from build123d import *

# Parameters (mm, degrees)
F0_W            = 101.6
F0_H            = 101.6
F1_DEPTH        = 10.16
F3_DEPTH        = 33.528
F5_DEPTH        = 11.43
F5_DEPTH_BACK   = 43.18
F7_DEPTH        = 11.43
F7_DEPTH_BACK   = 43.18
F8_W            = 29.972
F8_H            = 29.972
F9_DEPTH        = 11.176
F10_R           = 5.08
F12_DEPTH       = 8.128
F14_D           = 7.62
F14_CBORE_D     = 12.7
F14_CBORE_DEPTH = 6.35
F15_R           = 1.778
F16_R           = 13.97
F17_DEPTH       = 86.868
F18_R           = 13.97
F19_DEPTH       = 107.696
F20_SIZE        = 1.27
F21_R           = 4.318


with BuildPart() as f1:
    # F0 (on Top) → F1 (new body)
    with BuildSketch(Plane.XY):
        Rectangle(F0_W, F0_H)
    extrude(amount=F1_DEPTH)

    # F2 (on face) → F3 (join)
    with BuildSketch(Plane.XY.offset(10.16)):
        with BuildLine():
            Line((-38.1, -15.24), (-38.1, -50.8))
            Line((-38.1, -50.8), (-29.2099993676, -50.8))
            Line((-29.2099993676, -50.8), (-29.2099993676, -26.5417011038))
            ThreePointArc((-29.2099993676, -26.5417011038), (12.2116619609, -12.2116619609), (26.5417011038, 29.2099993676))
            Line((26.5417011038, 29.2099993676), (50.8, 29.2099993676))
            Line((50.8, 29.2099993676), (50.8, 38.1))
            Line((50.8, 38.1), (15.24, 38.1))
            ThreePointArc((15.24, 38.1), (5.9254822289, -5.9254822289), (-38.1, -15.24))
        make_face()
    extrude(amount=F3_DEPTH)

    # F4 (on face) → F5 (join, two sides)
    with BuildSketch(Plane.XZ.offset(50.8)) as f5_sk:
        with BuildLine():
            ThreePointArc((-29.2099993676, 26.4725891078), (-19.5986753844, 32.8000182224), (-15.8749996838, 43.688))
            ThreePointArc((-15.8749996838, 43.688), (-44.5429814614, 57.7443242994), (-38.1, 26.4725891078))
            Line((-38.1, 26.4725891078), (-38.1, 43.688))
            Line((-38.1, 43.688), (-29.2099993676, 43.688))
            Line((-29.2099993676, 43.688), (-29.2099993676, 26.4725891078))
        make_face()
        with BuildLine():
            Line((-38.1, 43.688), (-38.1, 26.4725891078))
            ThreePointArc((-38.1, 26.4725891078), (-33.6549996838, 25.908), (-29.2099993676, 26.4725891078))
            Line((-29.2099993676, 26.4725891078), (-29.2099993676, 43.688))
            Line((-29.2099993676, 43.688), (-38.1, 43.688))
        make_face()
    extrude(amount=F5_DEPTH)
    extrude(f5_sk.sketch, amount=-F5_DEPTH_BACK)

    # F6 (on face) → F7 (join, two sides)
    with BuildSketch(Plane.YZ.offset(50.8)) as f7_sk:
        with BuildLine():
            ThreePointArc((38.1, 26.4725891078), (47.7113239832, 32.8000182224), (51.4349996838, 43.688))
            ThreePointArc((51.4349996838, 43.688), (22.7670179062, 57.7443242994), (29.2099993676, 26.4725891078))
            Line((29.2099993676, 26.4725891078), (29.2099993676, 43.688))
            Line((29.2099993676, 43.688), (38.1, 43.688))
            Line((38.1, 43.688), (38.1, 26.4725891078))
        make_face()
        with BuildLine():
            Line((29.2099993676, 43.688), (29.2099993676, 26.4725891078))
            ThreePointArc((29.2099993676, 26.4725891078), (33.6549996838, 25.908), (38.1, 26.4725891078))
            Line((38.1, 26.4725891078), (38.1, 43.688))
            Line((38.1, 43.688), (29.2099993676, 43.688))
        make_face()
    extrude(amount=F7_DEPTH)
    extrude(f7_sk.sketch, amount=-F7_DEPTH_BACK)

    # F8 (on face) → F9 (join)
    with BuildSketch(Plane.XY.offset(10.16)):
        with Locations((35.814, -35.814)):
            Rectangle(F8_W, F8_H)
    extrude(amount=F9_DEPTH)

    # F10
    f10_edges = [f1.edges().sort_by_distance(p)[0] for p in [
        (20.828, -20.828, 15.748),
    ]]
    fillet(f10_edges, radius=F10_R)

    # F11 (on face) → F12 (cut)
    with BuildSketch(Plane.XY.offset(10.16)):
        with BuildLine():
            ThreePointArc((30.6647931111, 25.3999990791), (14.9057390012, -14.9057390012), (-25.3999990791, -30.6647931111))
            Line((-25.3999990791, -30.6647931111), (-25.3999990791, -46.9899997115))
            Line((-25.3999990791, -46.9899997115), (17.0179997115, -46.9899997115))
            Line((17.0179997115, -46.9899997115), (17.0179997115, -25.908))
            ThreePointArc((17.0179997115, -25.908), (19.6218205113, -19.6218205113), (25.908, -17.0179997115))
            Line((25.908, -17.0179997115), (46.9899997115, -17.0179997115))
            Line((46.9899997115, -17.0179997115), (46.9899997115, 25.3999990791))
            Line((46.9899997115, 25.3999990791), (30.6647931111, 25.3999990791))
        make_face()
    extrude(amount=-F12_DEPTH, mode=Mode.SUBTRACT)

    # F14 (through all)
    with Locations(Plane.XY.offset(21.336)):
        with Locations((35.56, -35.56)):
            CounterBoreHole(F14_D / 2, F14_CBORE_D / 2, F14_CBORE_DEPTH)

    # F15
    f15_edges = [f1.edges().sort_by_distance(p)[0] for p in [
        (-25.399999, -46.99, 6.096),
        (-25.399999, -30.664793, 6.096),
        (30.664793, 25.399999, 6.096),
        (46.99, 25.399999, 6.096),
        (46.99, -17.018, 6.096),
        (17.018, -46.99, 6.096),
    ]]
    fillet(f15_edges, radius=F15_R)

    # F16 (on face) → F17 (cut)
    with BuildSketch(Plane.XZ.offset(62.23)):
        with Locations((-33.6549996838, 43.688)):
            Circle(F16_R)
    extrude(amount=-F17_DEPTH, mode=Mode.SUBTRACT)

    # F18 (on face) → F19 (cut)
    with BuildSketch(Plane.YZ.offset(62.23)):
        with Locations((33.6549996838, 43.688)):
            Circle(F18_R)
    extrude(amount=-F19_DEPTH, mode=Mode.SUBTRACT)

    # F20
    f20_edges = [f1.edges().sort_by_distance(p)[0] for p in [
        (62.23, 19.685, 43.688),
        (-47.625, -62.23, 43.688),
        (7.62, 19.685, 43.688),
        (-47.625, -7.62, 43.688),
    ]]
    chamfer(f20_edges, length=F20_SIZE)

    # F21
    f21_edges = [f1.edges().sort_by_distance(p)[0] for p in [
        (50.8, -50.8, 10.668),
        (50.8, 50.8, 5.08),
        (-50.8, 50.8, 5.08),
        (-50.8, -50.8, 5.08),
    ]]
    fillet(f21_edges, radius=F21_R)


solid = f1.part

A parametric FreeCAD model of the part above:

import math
import FreeCAD as App
import Part
import Sketcher

V = App.Vector
Q = App.Units.Quantity


def edges_at(feature, points):
    """Names of the edges that pass closest to the given points."""
    edges = feature.Shape.Edges
    near = lambda p: min(range(len(edges)), key=lambda i: edges[i].distToShape(Part.Vertex(*p))[0])
    return sorted({f"Edge{near(p) + 1}" for p in points})


def add_polygon(sketch, points):
    """Adds a closed chain of lines whose ends are joined by coincident constraints."""
    first, n = sketch.GeometryCount, len(points)
    for a, b in zip(points, points[1:] + points[:1]):
        sketch.addGeometry(Part.LineSegment(App.Vector(*a, 0), App.Vector(*b, 0)), False)
    for i in range(n):
        sketch.addConstraint(Sketcher.Constraint("Coincident", first + i, 2, first + (i + 1) % n, 1))

doc = App.newDocument("Part")
body = doc.addObject("PartDesign::Body", "Body")

sketch1 = doc.addObject("Sketcher::SketchObject", "Sketch")
body.addObject(sketch1)
sketch1.AttachmentSupport = (doc.XY_Plane, [""])
sketch1.MapMode = "FlatFace"
add_polygon(sketch1, [(-51, 51), (-51, -51), (51, -51), (51, 51)])
sketch1.addConstraint([
    Sketcher.Constraint("Vertical", 0),
    Sketcher.Constraint("Horizontal", 1),
    Sketcher.Constraint("Vertical", 2),
    Sketcher.Constraint("Horizontal", 3),
    Sketcher.Constraint("Symmetric", 0, 2, 2, 2, -1, 1),
    Sketcher.Constraint("Equal", 3, 0),
    Sketcher.Constraint("DistanceX", 1, 1, 1, 2, Q("4 in")),
])
pad1 = doc.addObject("PartDesign::Pad", "Pad")
body.addObject(pad1)
pad1.Profile = sketch1
pad1.Length = Q("0.4 in")

sketch2 = doc.addObject("Sketcher::SketchObject", "Sketch001")
body.addObject(sketch2)
sketch2.AttachmentSupport = (doc.XY_Plane, [""])
sketch2.MapMode = "FlatFace"
sketch2.AttachmentOffset = App.Placement(V(0, 0, 0.4 * 25.4), App.Rotation())
sketch2.addGeometry([
    Part.LineSegment(V(-38, -15, 0), V(-38, -51, 0)),
    Part.LineSegment(V(-38, -51, 0), V(-29, -51, 0)),
    Part.LineSegment(V(-29, -51, 0), V(-29, -27, 0)),
    Part.ArcOfCircle(Part.Circle(V(-23, 23, 0), V(0, 0, 1), 50), math.radians(-97), math.radians(7)),
    Part.LineSegment(V(27, 29, 0), V(51, 29, 0)),
    Part.LineSegment(V(51, 29, 0), V(51, 38, 0)),
    Part.LineSegment(V(51, 38, 0), V(15, 38, 0)),
    Part.ArcOfCircle(Part.Circle(V(-23, 23, 0), V(0, 0, 1), 41), math.radians(-111), math.radians(21)),
], False)
sketch2.addConstraint([
    Sketcher.Constraint("Coincident", 0, 2, 1, 1),
    Sketcher.Constraint("Coincident", 1, 2, 2, 1),
    Sketcher.Constraint("Coincident", 2, 2, 3, 1),
    Sketcher.Constraint("Coincident", 3, 2, 4, 1),
    Sketcher.Constraint("Coincident", 4, 2, 5, 1),
    Sketcher.Constraint("Coincident", 5, 2, 6, 1),
    Sketcher.Constraint("Coincident", 6, 2, 7, 2),
    Sketcher.Constraint("Coincident", 7, 1, 0, 1),
    Sketcher.Constraint("Vertical", 0),
    Sketcher.Constraint("Horizontal", 1),
    Sketcher.Constraint("Vertical", 2),
    Sketcher.Constraint("Horizontal", 4),
    Sketcher.Constraint("Vertical", 5),
    Sketcher.Constraint("Horizontal", 6),
    Sketcher.Constraint("Coincident", 7, 3, 3, 3),
    Sketcher.Constraint("Equal", 6, 0),
    Sketcher.Constraint("Equal", 4, 2),
    Sketcher.Constraint("Equal", 1, 5),
    Sketcher.Constraint("DistanceX", 6, 2, 6, 1, Q("1.4 in")),
    Sketcher.Constraint("DistanceY", 0, 2, -1, 1, Q("2 in")),
    Sketcher.Constraint("DistanceX", -1, 1, 4, 2, Q("2 in")),
    Sketcher.Constraint("DistanceX", 1, 1, 1, 2, Q("0.35 in")),
    Sketcher.Constraint("DistanceX", 0, 2, -1, 1, Q("1.5 in")),
    Sketcher.Constraint("Radius", 3, 50.141911),
    Sketcher.Constraint("Radius", 7, 41.25191),
])
pad2 = doc.addObject("PartDesign::Pad", "Pad001")
body.addObject(pad2)
pad2.Profile = sketch2
pad2.Length = Q("1.32 in")

sketch3 = doc.addObject("Sketcher::SketchObject", "Sketch002")
body.addObject(sketch3)
sketch3.AttachmentSupport = (doc.XZ_Plane, [""])
sketch3.MapMode = "FlatFace"
sketch3.AttachmentOffset = App.Placement(V(0, 0, 2 * 25.4), App.Rotation())
sketch3.addGeometry([
    Part.ArcOfCircle(Part.Circle(V(-34, 44, 0), V(0, 0, 1), 18), math.radians(-76), math.radians(256)),
    Part.ArcOfCircle(Part.Circle(V(-34, 44, 0), V(0, 0, 1), 18), math.radians(-104), math.radians(-76)),
], False)
sketch3.addConstraint([
    Sketcher.Constraint("Tangent", 0, 1, 1, 2),
    Sketcher.Constraint("Coincident", 1, 1, 0, 2),
    Sketcher.Constraint("Horizontal", 0, 1, 1, 1),
    Sketcher.Constraint("Radius", 0, Q("0.7 in")),
    Sketcher.Constraint("DistanceX", 1, 1, -1, 1, Q("1.5 in")),
    Sketcher.Constraint("DistanceY", -1, 1, 0, 3, Q("1.72 in")),
    Sketcher.Constraint("DistanceX", 0, 1, -1, 1, Q("1.15 in")),
])
pad3 = doc.addObject("PartDesign::Pad", "Pad002")
body.addObject(pad3)
pad3.Profile = sketch3
pad3.Type = "TwoLengths"
pad3.Length = Q("0.45 in")
pad3.Length2 = Q("1.7 in")

sketch4 = doc.addObject("Sketcher::SketchObject", "Sketch003")
body.addObject(sketch4)
sketch4.AttachmentSupport = (doc.YZ_Plane, [""])
sketch4.MapMode = "FlatFace"
sketch4.AttachmentOffset = App.Placement(V(0, 0, 2 * 25.4), App.Rotation())
sketch4.addGeometry([
    Part.ArcOfCircle(Part.Circle(V(34, 44, 0), V(0, 0, 1), 18), math.radians(-76), math.radians(256)),
    Part.ArcOfCircle(Part.Circle(V(34, 44, 0), V(0, 0, 1), 18), math.radians(-104), math.radians(-76)),
], False)
sketch4.addConstraint([
    Sketcher.Constraint("Tangent", 0, 1, 1, 2),
    Sketcher.Constraint("Coincident", 1, 1, 0, 2),
    Sketcher.Constraint("Horizontal", 0, 1, 1, 1),
    Sketcher.Constraint("Radius", 0, Q("0.7 in")),
    Sketcher.Constraint("DistanceX", -1, 1, 0, 1, Q("1.5 in")),
    Sketcher.Constraint("DistanceY", -1, 1, 0, 3, Q("1.72 in")),
    Sketcher.Constraint("DistanceX", -1, 1, 1, 1, Q("1.15 in")),
])
pad4 = doc.addObject("PartDesign::Pad", "Pad003")
body.addObject(pad4)
pad4.Profile = sketch4
pad4.Type = "TwoLengths"
pad4.Length = Q("0.45 in")
pad4.Length2 = Q("1.7 in")

sketch5 = doc.addObject("Sketcher::SketchObject", "Sketch004")
body.addObject(sketch5)
sketch5.AttachmentSupport = (doc.XY_Plane, [""])
sketch5.MapMode = "FlatFace"
sketch5.AttachmentOffset = App.Placement(V(0, 0, 0.4 * 25.4), App.Rotation())
add_polygon(sketch5, [(21, -21), (21, -51), (51, -51), (51, -21)])
sketch5.addConstraint([
    Sketcher.Constraint("Vertical", 0),
    Sketcher.Constraint("Horizontal", 1),
    Sketcher.Constraint("Vertical", 2),
    Sketcher.Constraint("Horizontal", 3),
    Sketcher.Constraint("Equal", 3, 0),
    Sketcher.Constraint("DistanceY", 0, 2, -1, 1, Q("2 in")),
    Sketcher.Constraint("DistanceX", -1, 1, 1, 2, Q("2 in")),
    Sketcher.Constraint("DistanceX", 1, 1, 1, 2, Q("1.18 in")),
])
pad5 = doc.addObject("PartDesign::Pad", "Pad004")
body.addObject(pad5)
pad5.Profile = sketch5
pad5.Length = Q("0.44 in")
doc.recompute()

fillet = doc.addObject("PartDesign::Fillet", "Fillet")
body.addObject(fillet)
fillet.Base = (pad5, edges_at(pad5, [(20.828, -20.828, 15.748)]))
fillet.Radius = Q("0.2 in")

sketch6 = doc.addObject("Sketcher::SketchObject", "Sketch005")
body.addObject(sketch6)
sketch6.AttachmentSupport = (doc.XY_Plane, [""])
sketch6.MapMode = "FlatFace"
sketch6.AttachmentOffset = App.Placement(V(0, 0, 0.4 * 25.4), App.Rotation())
sketch6.addGeometry([
    Part.ArcOfCircle(Part.Circle(V(-23, 23, 0), V(0, 0, 1), 54), math.radians(-92), math.radians(2)),
    Part.LineSegment(V(-25, -31, 0), V(-25, -47, 0)),
    Part.LineSegment(V(-25, -47, 0), V(17, -47, 0)),
    Part.LineSegment(V(17, -47, 0), V(17, -26, 0)),
    Part.ArcOfCircle(Part.Circle(V(26, -26, 0), V(0, 0, 1), 9), math.radians(90), math.radians(180)),
    Part.LineSegment(V(26, -17, 0), V(47, -17, 0)),
    Part.LineSegment(V(47, -17, 0), V(47, 25, 0)),
    Part.LineSegment(V(47, 25, 0), V(31, 25, 0)),
], False)
sketch6.addConstraint([
    Sketcher.Constraint("Coincident", 0, 1, 1, 1),
    Sketcher.Constraint("Coincident", 1, 2, 2, 1),
    Sketcher.Constraint("Coincident", 2, 2, 3, 1),
    Sketcher.Constraint("Tangent", 3, 2, 4, 2),
    Sketcher.Constraint("Tangent", 4, 1, 5, 1),
    Sketcher.Constraint("Coincident", 5, 2, 6, 1),
    Sketcher.Constraint("Coincident", 6, 2, 7, 1),
    Sketcher.Constraint("Coincident", 7, 2, 0, 2),
    Sketcher.Constraint("Vertical", 1),
    Sketcher.Constraint("Horizontal", 2),
    Sketcher.Constraint("Vertical", 3),
    Sketcher.Constraint("Horizontal", 5),
    Sketcher.Constraint("Vertical", 6),
    Sketcher.Constraint("Horizontal", 7),
    Sketcher.Constraint("Equal", 7, 1),
    Sketcher.Constraint("Equal", 5, 3),
    Sketcher.Constraint("Equal", 2, 6),
    Sketcher.Constraint("Radius", 4, Q("0.35 in")),
    Sketcher.Constraint("DistanceX", 0, 1, -1, 1, Q("1 in")),
    Sketcher.Constraint("DistanceY", -1, 1, 6, 2, Q("1 in")),
    Sketcher.Constraint("DistanceX", 2, 1, 2, 2, Q("1.67 in")),
    Sketcher.Constraint("DistanceX", 5, 1, 5, 2, Q("0.83 in")),
    Sketcher.Constraint("Radius", 0, 53.951911),
    Sketcher.Constraint("DistanceX", 7, 2, 7, 1, 16.325207),
])
pocket1 = doc.addObject("PartDesign::Pocket", "Pocket")
body.addObject(pocket1)
pocket1.Profile = sketch6
pocket1.Length = Q("0.32 in")

sketch7 = doc.addObject("Sketcher::SketchObject", "Sketch006")
body.addObject(sketch7)
sketch7.AttachmentSupport = (doc.XY_Plane, [""])
sketch7.MapMode = "FlatFace"
sketch7.AttachmentOffset = App.Placement(V(0, 0, 0.84 * 25.4), App.Rotation())
sketch7.addGeometry(Part.Circle(V(35.6, -35.6, 0), V(0, 0, 1), 3.8), False)
sketch7.addConstraint([
    Sketcher.Constraint("Diameter", 0, Q("0.3 in")),
    Sketcher.Constraint("DistanceX", -1, 1, 0, 3, Q("1.4 in")),
    Sketcher.Constraint("DistanceY", 0, 3, -1, 1, Q("1.4 in")),
])
doc.recompute()
hole = doc.addObject("PartDesign::Hole", "Hole")
body.addObject(hole)
hole.Profile = sketch7
hole.ThreadType = "None"
hole.Diameter = Q("0.3 in")
hole.DepthType = "ThroughAll"
hole.HoleCutType = "Counterbore"
hole.HoleCutDiameter = Q("0.5 in")
hole.HoleCutDepth = Q("0.25 in")
doc.recompute()

fillet2 = doc.addObject("PartDesign::Fillet", "Fillet001")
body.addObject(fillet2)
fillet2.Base = (hole, edges_at(hole, [
    (-25.4, -46.99, 6.096),
    (-25.4, -30.665, 6.096),
    (30.665, 25.4, 6.096),
    (46.99, 25.4, 6.096),
    (46.99, -17.018, 6.096),
    (17.018, -46.99, 6.096),
]))
fillet2.Radius = Q("0.07 in")

sketch8 = doc.addObject("Sketcher::SketchObject", "Sketch007")
body.addObject(sketch8)
sketch8.AttachmentSupport = (doc.XZ_Plane, [""])
sketch8.MapMode = "FlatFace"
sketch8.AttachmentOffset = App.Placement(V(0, 0, 2.45 * 25.4), App.Rotation())
sketch8.addGeometry(Part.Circle(V(-34, 44, 0), V(0, 0, 1), 14), False)
sketch8.addConstraint([
    Sketcher.Constraint("Diameter", 0, Q("1.1 in")),
    Sketcher.Constraint("DistanceY", -1, 1, 0, 3, Q("1.72 in")),
    Sketcher.Constraint("DistanceX", 0, 3, -1, 1, Q("1.325 in")),
])
pocket2 = doc.addObject("PartDesign::Pocket", "Pocket001")
body.addObject(pocket2)
pocket2.Profile = sketch8
pocket2.Length = Q("3.42 in")

sketch9 = doc.addObject("Sketcher::SketchObject", "Sketch008")
body.addObject(sketch9)
sketch9.AttachmentSupport = (doc.YZ_Plane, [""])
sketch9.MapMode = "FlatFace"
sketch9.AttachmentOffset = App.Placement(V(0, 0, 2.45 * 25.4), App.Rotation())
sketch9.addGeometry(Part.Circle(V(34, 44, 0), V(0, 0, 1), 14), False)
sketch9.addConstraint([
    Sketcher.Constraint("Diameter", 0, Q("1.1 in")),
    Sketcher.Constraint("DistanceY", -1, 1, 0, 3, Q("1.72 in")),
    Sketcher.Constraint("DistanceX", -1, 1, 0, 3, Q("1.325 in")),
])
pocket3 = doc.addObject("PartDesign::Pocket", "Pocket002")
body.addObject(pocket3)
pocket3.Profile = sketch9
pocket3.Length = Q("4.24 in")
doc.recompute()

chamfer = doc.addObject("PartDesign::Chamfer", "Chamfer")
body.addObject(chamfer)
chamfer.Base = (pocket3, edges_at(pocket3, [
    (62.23, 19.685, 43.688),
    (-47.625, -62.23, 43.688),
    (7.62, 19.685, 43.688),
    (-47.625, -7.62, 43.688),
]))
chamfer.Size = Q("0.05 in")
doc.recompute()

fillet3 = doc.addObject("PartDesign::Fillet", "Fillet002")
body.addObject(fillet3)
fillet3.Base = (chamfer, edges_at(chamfer, [
    (50.8, -50.8, 10.668),
    (50.8, 50.8, 5.08),
    (-50.8, 50.8, 5.08),
    (-50.8, -50.8, 5.08),
]))
fillet3.Radius = Q("0.17 in")

doc.recompute()
